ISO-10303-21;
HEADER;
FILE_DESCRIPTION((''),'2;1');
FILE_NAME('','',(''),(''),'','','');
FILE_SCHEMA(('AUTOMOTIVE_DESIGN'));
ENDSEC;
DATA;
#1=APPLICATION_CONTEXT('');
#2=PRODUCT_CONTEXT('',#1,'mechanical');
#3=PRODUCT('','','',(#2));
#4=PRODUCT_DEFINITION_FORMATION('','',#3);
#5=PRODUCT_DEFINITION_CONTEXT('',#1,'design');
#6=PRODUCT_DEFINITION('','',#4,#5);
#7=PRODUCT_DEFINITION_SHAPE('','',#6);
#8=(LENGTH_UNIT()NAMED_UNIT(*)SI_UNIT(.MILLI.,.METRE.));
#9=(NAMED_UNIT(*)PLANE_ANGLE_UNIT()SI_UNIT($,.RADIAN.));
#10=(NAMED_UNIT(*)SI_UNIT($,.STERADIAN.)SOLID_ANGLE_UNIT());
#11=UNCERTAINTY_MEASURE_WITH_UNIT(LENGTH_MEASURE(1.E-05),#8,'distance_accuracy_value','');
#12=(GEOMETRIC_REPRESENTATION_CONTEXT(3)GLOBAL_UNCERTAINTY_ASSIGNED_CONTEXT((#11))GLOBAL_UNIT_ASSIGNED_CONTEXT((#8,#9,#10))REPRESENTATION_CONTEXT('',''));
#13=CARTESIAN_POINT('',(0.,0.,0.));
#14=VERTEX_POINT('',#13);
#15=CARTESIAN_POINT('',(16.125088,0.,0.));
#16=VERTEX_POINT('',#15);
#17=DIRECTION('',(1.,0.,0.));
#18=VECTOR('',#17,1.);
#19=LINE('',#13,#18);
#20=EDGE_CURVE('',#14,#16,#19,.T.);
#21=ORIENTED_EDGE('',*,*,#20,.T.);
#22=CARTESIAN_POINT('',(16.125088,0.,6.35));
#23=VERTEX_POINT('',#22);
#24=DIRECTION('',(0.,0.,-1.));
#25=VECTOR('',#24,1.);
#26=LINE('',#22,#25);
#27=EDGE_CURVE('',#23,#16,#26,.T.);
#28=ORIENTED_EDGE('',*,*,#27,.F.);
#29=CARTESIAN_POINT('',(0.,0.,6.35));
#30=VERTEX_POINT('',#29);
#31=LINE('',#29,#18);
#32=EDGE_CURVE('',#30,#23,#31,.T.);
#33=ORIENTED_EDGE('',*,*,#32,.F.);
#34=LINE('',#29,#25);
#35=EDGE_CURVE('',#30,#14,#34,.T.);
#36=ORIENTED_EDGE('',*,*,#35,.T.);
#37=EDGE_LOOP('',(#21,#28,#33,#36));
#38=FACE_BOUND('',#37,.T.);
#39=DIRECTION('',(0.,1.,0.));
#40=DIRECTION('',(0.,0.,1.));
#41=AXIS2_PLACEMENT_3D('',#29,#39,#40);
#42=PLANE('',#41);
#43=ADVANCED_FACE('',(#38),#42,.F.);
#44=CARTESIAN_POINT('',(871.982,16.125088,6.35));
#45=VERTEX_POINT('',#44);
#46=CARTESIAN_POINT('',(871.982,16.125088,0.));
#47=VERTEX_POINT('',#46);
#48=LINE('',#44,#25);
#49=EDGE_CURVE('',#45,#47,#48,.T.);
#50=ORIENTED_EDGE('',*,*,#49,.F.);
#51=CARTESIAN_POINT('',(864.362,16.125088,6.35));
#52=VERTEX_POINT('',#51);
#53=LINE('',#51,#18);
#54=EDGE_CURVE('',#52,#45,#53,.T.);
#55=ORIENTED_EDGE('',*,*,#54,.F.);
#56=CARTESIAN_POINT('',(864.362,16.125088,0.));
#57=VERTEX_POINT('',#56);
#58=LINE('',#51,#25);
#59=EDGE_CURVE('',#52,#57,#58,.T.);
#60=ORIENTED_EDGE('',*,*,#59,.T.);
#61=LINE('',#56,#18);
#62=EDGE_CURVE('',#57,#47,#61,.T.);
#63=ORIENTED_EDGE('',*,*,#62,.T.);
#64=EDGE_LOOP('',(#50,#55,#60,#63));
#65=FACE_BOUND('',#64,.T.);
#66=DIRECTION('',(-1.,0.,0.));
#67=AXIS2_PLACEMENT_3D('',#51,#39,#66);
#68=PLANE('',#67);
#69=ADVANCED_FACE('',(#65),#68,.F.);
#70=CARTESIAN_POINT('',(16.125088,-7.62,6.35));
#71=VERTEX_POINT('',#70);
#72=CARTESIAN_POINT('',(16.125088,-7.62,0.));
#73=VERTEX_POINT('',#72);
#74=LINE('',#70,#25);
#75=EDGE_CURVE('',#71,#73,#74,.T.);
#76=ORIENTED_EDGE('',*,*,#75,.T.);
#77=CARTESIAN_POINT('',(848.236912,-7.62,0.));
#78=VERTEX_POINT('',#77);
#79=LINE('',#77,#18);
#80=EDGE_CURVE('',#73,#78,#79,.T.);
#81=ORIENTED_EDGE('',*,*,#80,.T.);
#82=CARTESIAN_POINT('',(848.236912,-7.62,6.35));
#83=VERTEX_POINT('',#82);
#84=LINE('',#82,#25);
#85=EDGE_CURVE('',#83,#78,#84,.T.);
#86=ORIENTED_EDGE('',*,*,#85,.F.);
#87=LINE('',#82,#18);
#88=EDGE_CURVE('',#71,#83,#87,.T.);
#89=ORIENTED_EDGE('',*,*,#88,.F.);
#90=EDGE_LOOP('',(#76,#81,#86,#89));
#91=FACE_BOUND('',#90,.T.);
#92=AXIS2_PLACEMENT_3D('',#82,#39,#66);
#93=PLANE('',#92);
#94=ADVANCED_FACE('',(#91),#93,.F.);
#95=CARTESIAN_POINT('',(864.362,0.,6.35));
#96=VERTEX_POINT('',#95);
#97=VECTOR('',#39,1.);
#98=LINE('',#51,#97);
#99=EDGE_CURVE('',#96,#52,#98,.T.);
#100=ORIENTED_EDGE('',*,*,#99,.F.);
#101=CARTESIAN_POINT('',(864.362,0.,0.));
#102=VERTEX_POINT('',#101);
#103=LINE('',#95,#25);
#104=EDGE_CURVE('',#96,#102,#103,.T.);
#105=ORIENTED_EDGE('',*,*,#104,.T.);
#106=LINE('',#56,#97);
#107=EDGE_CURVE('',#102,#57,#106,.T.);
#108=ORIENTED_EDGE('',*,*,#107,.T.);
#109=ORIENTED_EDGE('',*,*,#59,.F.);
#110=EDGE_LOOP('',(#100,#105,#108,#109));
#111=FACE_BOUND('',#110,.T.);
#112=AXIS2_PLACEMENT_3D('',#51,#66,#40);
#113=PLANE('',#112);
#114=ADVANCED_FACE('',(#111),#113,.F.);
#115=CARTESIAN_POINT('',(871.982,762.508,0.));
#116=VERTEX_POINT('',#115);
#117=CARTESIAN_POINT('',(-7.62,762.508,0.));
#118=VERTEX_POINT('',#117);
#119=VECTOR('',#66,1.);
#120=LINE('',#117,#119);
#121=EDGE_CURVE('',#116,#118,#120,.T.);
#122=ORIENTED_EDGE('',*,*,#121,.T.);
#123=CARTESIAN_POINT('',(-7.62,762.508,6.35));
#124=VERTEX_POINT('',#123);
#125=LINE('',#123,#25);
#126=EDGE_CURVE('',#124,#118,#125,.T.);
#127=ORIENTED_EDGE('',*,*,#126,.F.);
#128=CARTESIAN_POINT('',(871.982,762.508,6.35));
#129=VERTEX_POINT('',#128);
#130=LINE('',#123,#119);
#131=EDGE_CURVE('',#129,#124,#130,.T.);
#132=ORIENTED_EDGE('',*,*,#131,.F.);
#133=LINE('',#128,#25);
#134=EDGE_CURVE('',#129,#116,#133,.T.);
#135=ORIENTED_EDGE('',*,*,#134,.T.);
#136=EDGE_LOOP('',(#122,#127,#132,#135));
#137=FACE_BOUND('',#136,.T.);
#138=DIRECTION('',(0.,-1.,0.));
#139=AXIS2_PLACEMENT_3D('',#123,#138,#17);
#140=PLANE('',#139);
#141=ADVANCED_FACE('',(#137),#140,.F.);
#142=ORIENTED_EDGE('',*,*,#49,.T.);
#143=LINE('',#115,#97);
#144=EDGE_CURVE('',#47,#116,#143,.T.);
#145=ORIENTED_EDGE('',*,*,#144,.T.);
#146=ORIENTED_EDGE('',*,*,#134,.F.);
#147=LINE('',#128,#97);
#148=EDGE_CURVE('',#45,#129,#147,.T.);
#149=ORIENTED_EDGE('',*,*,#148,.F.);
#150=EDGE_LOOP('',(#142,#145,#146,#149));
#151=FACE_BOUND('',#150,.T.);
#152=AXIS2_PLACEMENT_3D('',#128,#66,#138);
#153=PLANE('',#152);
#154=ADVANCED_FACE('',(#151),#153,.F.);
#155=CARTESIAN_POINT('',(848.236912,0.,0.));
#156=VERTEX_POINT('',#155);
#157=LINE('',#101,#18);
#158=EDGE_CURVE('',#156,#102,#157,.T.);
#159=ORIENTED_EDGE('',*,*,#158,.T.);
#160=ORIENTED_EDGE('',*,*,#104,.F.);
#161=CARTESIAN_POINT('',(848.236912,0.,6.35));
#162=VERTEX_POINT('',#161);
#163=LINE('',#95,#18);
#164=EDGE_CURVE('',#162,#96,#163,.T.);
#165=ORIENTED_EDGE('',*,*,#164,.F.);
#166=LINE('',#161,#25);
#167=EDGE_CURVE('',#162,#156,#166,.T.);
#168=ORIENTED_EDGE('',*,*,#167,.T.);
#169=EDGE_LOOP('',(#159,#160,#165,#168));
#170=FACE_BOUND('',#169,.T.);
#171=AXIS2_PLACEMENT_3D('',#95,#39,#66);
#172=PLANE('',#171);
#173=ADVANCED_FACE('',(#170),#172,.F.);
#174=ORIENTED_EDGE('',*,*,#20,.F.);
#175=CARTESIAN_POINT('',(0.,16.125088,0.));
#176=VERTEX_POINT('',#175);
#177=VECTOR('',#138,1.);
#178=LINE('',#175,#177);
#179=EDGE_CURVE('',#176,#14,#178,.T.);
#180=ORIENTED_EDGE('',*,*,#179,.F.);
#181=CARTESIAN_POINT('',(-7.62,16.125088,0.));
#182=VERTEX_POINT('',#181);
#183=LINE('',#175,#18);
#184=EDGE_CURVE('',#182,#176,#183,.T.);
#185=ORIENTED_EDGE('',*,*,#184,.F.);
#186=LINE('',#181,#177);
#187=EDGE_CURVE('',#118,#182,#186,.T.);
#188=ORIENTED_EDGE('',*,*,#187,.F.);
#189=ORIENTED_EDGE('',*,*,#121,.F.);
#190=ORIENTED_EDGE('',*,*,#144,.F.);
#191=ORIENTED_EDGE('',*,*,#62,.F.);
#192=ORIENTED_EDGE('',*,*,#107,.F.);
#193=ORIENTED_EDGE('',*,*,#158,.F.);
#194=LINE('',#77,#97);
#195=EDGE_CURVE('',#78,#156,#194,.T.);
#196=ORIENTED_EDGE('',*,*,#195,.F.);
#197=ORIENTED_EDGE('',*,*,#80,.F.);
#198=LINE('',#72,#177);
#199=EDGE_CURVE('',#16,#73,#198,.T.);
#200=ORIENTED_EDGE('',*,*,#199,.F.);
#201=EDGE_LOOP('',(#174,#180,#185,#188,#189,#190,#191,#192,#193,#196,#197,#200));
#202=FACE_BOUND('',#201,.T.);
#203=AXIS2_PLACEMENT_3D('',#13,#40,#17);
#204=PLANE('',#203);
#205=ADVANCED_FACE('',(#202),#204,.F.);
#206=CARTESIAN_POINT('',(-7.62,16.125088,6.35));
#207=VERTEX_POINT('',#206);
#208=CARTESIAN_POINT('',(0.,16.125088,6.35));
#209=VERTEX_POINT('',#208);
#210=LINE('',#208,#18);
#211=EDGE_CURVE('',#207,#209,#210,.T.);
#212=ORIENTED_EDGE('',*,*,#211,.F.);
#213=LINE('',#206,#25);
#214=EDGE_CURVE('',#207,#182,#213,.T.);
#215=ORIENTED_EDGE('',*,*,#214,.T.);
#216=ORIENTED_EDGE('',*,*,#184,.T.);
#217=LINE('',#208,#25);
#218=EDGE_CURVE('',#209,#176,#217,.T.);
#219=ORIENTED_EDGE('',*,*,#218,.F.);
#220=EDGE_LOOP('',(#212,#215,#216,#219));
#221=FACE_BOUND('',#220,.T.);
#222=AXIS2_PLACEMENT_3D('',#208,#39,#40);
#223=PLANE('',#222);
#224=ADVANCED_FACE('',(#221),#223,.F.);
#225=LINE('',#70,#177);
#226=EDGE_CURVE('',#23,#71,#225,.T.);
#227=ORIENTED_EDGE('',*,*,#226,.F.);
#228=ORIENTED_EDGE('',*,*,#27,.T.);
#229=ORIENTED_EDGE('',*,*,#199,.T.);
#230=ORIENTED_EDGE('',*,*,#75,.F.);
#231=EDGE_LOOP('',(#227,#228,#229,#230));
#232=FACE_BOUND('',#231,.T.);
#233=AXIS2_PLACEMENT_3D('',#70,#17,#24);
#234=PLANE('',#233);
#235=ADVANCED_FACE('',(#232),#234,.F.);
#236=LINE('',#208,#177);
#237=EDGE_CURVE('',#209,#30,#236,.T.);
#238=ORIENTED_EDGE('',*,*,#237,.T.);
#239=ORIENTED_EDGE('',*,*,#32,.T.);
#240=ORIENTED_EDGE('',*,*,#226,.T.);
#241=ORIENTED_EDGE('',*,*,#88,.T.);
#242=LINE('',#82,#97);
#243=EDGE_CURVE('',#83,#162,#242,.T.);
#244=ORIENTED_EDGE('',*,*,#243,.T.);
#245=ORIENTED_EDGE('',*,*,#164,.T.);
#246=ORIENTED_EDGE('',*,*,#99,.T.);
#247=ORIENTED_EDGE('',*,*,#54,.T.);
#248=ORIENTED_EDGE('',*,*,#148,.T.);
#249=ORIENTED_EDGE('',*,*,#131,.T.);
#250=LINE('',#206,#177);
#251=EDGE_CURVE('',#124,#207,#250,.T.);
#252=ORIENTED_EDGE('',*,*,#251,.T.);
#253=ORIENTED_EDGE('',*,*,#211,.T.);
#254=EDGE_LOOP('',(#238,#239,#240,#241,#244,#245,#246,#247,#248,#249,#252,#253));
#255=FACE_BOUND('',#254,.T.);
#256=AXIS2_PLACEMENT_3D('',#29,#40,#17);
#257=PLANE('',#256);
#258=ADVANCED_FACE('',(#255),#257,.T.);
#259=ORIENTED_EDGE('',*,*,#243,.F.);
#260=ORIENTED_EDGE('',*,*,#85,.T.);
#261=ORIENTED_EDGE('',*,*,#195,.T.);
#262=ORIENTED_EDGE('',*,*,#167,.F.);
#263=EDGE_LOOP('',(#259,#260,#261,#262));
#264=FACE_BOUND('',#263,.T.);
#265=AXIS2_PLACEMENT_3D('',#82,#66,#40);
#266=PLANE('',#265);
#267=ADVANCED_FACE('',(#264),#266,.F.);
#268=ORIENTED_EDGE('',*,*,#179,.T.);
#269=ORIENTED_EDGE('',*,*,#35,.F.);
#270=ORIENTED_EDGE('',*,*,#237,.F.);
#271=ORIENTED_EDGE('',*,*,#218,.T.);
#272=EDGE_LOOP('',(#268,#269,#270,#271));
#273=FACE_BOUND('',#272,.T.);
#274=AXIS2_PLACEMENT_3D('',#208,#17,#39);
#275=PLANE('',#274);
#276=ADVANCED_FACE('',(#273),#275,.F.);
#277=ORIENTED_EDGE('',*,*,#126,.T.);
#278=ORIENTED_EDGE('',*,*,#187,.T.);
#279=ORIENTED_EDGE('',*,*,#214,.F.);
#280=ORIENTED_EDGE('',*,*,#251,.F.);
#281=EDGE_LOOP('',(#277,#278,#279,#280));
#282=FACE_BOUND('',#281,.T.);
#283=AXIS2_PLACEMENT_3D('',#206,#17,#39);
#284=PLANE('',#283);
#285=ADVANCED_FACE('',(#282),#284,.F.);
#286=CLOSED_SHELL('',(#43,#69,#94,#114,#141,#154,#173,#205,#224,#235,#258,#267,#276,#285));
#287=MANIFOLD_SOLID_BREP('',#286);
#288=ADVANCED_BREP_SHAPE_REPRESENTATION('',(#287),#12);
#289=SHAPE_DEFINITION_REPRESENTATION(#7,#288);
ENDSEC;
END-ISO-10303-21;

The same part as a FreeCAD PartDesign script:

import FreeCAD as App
import Part
import Sketcher

V = App.Vector
Q = App.Units.Quantity


def add_polygon(sketch, points):
    """Adds a closed chain of lines whose ends are joined by coincident constraints."""
    first, n = sketch.GeometryCount, len(points)
    for a, b in zip(points, points[1:] + points[:1]):
        sketch.addGeometry(Part.LineSegment(App.Vector(*a, 0), App.Vector(*b, 0)), False)
    for i in range(n):
        sketch.addConstraint(Sketcher.Constraint("Coincident", first + i, 2, first + (i + 1) % n, 1))

doc = App.newDocument("Part")
body = doc.addObject("PartDesign::Body", "Body")

sketch1 = body.newObject("Sketcher::SketchObject", "Sketch")
sketch1.AttachmentSupport = (doc.getObject("XY_Plane"), [""])
sketch1.MapMode = "FlatFace"
add_polygon(sketch1, [(16, 0), (16, -8), (848, -8), (848, 0), (864, 0), (864, 16), (872, 16), (872, 763), (-8, 763), (-8, 16), (0, 16), (0, 0)])
sketch1.addConstraint([
    Sketcher.Constraint("Vertical", 0),
    Sketcher.Constraint("Horizontal", 1),
    Sketcher.Constraint("Vertical", 2),
    Sketcher.Constraint("Horizontal", 3),
    Sketcher.Constraint("Vertical", 4),
    Sketcher.Constraint("Horizontal", 5),
    Sketcher.Constraint("Vertical", 6),
    Sketcher.Constraint("Horizontal", 7),
    Sketcher.Constraint("Vertical", 8),
    Sketcher.Constraint("Horizontal", 9),
    Sketcher.Constraint("Vertical", 10),
    Sketcher.Constraint("Horizontal", 11),
    Sketcher.Constraint("Coincident", 10, 2, -1, 1),
    Sketcher.Constraint("PointOnObject", 2, 2, -1),
    Sketcher.Constraint("Horizontal", 5, 2, 8, 2),
    Sketcher.Constraint("Equal", 5, 9),
    Sketcher.Constraint("Equal", 3, 11),
    Sketcher.Constraint("Equal", 9, 0),
    Sketcher.Constraint("Equal", 11, 4),
    Sketcher.Constraint("DistanceX", 5, 1, 5, 2, Q("0.3 in")),
    Sketcher.Constraint("DistanceX", 7, 2, 7, 1, Q("34.63 in")),
    Sketcher.Constraint("DistanceY", -1, 1, 6, 2, Q("30.02 in")),
    Sketcher.Constraint("DistanceX", 3, 1, 3, 2, 16.125088),
])
pad1 = body.newObject("PartDesign::Pad", "Pad")
pad1.Profile = sketch1
pad1.Length = Q("0.25 in")

doc.recompute()
